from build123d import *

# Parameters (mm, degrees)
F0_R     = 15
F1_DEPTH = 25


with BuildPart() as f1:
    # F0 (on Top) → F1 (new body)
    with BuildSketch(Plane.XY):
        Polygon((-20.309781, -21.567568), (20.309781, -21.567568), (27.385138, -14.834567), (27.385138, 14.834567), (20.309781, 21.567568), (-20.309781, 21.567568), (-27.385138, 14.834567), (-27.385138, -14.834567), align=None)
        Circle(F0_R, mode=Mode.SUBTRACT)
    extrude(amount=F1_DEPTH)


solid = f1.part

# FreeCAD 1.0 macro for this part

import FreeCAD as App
import Part
import Sketcher

V = App.Vector

doc = App.newDocument("Part")
body = doc.addObject("PartDesign::Body", "Body")

sketch1 = body.newObject("Sketcher::SketchObject", "Sketch")
sketch1.AttachmentSupport = (doc.getObject("XY_Plane"), [""])
sketch1.MapMode = "FlatFace"
sketch1.addGeometry(Part.LineSegment(V(-20.309781, -21.567568, 0), V(20.309781, -21.567568, 0)), False)
sketch1.addGeometry(Part.LineSegment(V(20.309781, -21.567568, 0), V(27.385138, -14.834567, 0)), False)
sketch1.addGeometry(Part.LineSegment(V(27.385138, -14.834567, 0), V(27.385138, 14.834567, 0)), False)
sketch1.addGeometry(Part.LineSegment(V(27.385138, 14.834567, 0), V(20.309781, 21.567568, 0)), False)
sketch1.addGeometry(Part.LineSegment(V(20.309781, 21.567568, 0), V(-20.309781, 21.567568, 0)), False)
sketch1.addGeometry(Part.LineSegment(V(-20.309781, 21.567568, 0), V(-27.385138, 14.834567, 0)), False)
sketch1.addGeometry(Part.LineSegment(V(-27.385138, 14.834567, 0), V(-27.385138, -14.834567, 0)), False)
sketch1.addGeometry(Part.LineSegment(V(-27.385138, -14.834567, 0), V(-20.309781, -21.567568, 0)), False)
sketch1.addGeometry(Part.Circle(V(0, 0, 0), V(0, 0, 1), 15), False)
sketch1.addConstraint(Sketcher.Constraint("Coincident", 0, 2, 1, 1))
sketch1.addConstraint(Sketcher.Constraint("Coincident", 1, 2, 2, 1))
sketch1.addConstraint(Sketcher.Constraint("Coincident", 2, 2, 3, 1))
sketch1.addConstraint(Sketcher.Constraint("Coincident", 3, 2, 4, 1))
sketch1.addConstraint(Sketcher.Constraint("Coincident", 4, 2, 5, 1))
sketch1.addConstraint(Sketcher.Constraint("Coincident", 5, 2, 6, 1))
sketch1.addConstraint(Sketcher.Constraint("Coincident", 6, 2, 7, 1))
sketch1.addConstraint(Sketcher.Constraint("Coincident", 7, 2, 0, 1))
sketch1.addConstraint(Sketcher.Constraint("Horizontal", 0))
sketch1.addConstraint(Sketcher.Constraint("Vertical", 2))
sketch1.addConstraint(Sketcher.Constraint("Horizontal", 4))
sketch1.addConstraint(Sketcher.Constraint("Vertical", 6))
sketch1.addConstraint(Sketcher.Constraint("Coincident", 8, 3, -1, 1))
sketch1.addConstraint(Sketcher.Constraint("Symmetric", 0, 2, 4, 2, -1, 1))
sketch1.addConstraint(Sketcher.Constraint("Symmetric", 1, 2, 5, 2, -1, 1))
sketch1.addConstraint(Sketcher.Constraint("Parallel", 3, 7))
sketch1.addConstraint(Sketcher.Constraint("Horizontal", 2, 2, 5, 2))
sketch1.addConstraint(Sketcher.Constraint("Horizontal", 1, 2, 6, 2))
sketch1.addConstraint(Sketcher.Constraint("Vertical", 0, 2, 3, 2))
sketch1.addConstraint(Sketcher.Constraint("Diameter", 8, 30.0))
sketch1.addConstraint(Sketcher.Constraint("DistanceY", 0, 2, 1, 2, 6.733001))
sketch1.addConstraint(Sketcher.Constraint("DistanceX", 0, 1, 0, 2, 40.619562))
sketch1.addConstraint(Sketcher.Constraint("DistanceY", 2, 1, 2, 2, 29.669134))
sketch1.addConstraint(Sketcher.Constraint("DistanceX", -1, 1, 1, 2, 27.385138))
pad1 = body.newObject("PartDesign::Pad", "Pad")
pad1.Profile = sketch1
pad1.Length = 25

doc.recompute()
